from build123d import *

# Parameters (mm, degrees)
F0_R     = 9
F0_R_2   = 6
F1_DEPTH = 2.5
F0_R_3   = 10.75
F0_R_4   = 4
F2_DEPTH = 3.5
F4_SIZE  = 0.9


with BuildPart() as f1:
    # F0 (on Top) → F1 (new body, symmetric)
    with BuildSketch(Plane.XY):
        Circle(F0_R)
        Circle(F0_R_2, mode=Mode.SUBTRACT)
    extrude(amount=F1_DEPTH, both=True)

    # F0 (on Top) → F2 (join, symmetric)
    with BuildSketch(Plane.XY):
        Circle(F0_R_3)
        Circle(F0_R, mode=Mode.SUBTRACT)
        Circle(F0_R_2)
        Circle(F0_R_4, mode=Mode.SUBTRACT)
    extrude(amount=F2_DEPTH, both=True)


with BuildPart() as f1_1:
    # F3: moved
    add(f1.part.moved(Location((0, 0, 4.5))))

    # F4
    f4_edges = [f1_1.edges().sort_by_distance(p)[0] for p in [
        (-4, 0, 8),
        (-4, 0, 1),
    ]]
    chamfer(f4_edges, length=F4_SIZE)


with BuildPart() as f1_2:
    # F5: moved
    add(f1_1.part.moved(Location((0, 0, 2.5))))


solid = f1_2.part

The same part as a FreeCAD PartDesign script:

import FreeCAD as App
import Part
import Sketcher
Q = App.Units.Quantity


def edges_at(feature, points):
    """Names of the edges that pass closest to the given points."""
    edges = feature.Shape.Edges
    near = lambda p: min(range(len(edges)), key=lambda i: edges[i].distToShape(Part.Vertex(*p))[0])
    return sorted({f"Edge{near(p) + 1}" for p in points})

doc = App.newDocument("Part")
body = doc.addObject("PartDesign::Body", "Body")

sketch1 = body.newObject("Sketcher::SketchObject", "Sketch")
sketch1.AttachmentSupport = (doc.getObject("XY_Plane"), [""])
sketch1.MapMode = "FlatFace"
sketch1.addGeometry(Part.Circle(App.Vector(0, 0, 0), App.Vector(0, 0, 1), 9), False)
sketch1.addGeometry(Part.Circle(App.Vector(0, 0, 0), App.Vector(0, 0, 1), 6), False)
sketch1.addConstraint(Sketcher.Constraint("Coincident", 0, 3, -1, 1))
sketch1.addConstraint(Sketcher.Constraint("Coincident", 1, 3, -1, 1))
sketch1.addConstraint(Sketcher.Constraint("Diameter", 0, Q("18 mm")))
sketch1.addConstraint(Sketcher.Constraint("Diameter", 1, Q("12 mm")))
pad1 = body.newObject("PartDesign::Pad", "Pad")
pad1.Profile = sketch1
pad1.Length = 5
pad1.Midplane = True

sketch2 = body.newObject("Sketcher::SketchObject", "Sketch001")
sketch2.AttachmentSupport = (doc.getObject("XY_Plane"), [""])
sketch2.MapMode = "FlatFace"
sketch2.addGeometry(Part.Circle(App.Vector(0, 0, 0), App.Vector(0, 0, 1), 10.75), False)
sketch2.addGeometry(Part.Circle(App.Vector(0, 0, 0), App.Vector(0, 0, 1), 9), False)
sketch2.addGeometry(Part.Circle(App.Vector(0, 0, 0), App.Vector(0, 0, 1), 6), False)
sketch2.addGeometry(Part.Circle(App.Vector(0, 0, 0), App.Vector(0, 0, 1), 4), False)
sketch2.addConstraint(Sketcher.Constraint("Coincident", 0, 3, -1, 1))
sketch2.addConstraint(Sketcher.Constraint("Coincident", 1, 3, -1, 1))
sketch2.addConstraint(Sketcher.Constraint("Coincident", 2, 3, -1, 1))
sketch2.addConstraint(Sketcher.Constraint("Coincident", 3, 3, -1, 1))
sketch2.addConstraint(Sketcher.Constraint("Diameter", 1, Q("18 mm")))
sketch2.addConstraint(Sketcher.Constraint("Diameter", 2, Q("12 mm")))
sketch2.addConstraint(Sketcher.Constraint("Diameter", 3, Q("8 mm")))
sketch2.addConstraint(Sketcher.Constraint("Diameter", 0, Q("21.5 mm")))
pad2 = body.newObject("PartDesign::Pad", "Pad001")
pad2.Profile = sketch2
pad2.Length = 7
pad2.Midplane = True
body2 = doc.addObject("PartDesign::Body", "Body001")
doc.recompute()

body.Placement = App.Placement(App.Vector(0, 0, 4.5), App.Rotation(App.Vector(0, 0, 1), 0))
boolean = body2.newObject("PartDesign::Boolean", "Boolean")
boolean.Type = "Fuse"
boolean.addObjects([body])
doc.recompute()

chamfer = body2.newObject("PartDesign::Chamfer", "Chamfer")
chamfer.Base = (boolean, edges_at(boolean, [(-4, 0, 8), (-4, 0, 1)]))
chamfer.Size = 0.9
body3 = doc.addObject("PartDesign::Body", "Body002")
doc.recompute()

body2.Placement = App.Placement(App.Vector(0, 0, 2.5), App.Rotation(App.Vector(0, 0, 1), 0))
boolean2 = body3.newObject("PartDesign::Boolean", "Boolean001")
boolean2.Type = "Fuse"
boolean2.addObjects([body2])

doc.recompute()
